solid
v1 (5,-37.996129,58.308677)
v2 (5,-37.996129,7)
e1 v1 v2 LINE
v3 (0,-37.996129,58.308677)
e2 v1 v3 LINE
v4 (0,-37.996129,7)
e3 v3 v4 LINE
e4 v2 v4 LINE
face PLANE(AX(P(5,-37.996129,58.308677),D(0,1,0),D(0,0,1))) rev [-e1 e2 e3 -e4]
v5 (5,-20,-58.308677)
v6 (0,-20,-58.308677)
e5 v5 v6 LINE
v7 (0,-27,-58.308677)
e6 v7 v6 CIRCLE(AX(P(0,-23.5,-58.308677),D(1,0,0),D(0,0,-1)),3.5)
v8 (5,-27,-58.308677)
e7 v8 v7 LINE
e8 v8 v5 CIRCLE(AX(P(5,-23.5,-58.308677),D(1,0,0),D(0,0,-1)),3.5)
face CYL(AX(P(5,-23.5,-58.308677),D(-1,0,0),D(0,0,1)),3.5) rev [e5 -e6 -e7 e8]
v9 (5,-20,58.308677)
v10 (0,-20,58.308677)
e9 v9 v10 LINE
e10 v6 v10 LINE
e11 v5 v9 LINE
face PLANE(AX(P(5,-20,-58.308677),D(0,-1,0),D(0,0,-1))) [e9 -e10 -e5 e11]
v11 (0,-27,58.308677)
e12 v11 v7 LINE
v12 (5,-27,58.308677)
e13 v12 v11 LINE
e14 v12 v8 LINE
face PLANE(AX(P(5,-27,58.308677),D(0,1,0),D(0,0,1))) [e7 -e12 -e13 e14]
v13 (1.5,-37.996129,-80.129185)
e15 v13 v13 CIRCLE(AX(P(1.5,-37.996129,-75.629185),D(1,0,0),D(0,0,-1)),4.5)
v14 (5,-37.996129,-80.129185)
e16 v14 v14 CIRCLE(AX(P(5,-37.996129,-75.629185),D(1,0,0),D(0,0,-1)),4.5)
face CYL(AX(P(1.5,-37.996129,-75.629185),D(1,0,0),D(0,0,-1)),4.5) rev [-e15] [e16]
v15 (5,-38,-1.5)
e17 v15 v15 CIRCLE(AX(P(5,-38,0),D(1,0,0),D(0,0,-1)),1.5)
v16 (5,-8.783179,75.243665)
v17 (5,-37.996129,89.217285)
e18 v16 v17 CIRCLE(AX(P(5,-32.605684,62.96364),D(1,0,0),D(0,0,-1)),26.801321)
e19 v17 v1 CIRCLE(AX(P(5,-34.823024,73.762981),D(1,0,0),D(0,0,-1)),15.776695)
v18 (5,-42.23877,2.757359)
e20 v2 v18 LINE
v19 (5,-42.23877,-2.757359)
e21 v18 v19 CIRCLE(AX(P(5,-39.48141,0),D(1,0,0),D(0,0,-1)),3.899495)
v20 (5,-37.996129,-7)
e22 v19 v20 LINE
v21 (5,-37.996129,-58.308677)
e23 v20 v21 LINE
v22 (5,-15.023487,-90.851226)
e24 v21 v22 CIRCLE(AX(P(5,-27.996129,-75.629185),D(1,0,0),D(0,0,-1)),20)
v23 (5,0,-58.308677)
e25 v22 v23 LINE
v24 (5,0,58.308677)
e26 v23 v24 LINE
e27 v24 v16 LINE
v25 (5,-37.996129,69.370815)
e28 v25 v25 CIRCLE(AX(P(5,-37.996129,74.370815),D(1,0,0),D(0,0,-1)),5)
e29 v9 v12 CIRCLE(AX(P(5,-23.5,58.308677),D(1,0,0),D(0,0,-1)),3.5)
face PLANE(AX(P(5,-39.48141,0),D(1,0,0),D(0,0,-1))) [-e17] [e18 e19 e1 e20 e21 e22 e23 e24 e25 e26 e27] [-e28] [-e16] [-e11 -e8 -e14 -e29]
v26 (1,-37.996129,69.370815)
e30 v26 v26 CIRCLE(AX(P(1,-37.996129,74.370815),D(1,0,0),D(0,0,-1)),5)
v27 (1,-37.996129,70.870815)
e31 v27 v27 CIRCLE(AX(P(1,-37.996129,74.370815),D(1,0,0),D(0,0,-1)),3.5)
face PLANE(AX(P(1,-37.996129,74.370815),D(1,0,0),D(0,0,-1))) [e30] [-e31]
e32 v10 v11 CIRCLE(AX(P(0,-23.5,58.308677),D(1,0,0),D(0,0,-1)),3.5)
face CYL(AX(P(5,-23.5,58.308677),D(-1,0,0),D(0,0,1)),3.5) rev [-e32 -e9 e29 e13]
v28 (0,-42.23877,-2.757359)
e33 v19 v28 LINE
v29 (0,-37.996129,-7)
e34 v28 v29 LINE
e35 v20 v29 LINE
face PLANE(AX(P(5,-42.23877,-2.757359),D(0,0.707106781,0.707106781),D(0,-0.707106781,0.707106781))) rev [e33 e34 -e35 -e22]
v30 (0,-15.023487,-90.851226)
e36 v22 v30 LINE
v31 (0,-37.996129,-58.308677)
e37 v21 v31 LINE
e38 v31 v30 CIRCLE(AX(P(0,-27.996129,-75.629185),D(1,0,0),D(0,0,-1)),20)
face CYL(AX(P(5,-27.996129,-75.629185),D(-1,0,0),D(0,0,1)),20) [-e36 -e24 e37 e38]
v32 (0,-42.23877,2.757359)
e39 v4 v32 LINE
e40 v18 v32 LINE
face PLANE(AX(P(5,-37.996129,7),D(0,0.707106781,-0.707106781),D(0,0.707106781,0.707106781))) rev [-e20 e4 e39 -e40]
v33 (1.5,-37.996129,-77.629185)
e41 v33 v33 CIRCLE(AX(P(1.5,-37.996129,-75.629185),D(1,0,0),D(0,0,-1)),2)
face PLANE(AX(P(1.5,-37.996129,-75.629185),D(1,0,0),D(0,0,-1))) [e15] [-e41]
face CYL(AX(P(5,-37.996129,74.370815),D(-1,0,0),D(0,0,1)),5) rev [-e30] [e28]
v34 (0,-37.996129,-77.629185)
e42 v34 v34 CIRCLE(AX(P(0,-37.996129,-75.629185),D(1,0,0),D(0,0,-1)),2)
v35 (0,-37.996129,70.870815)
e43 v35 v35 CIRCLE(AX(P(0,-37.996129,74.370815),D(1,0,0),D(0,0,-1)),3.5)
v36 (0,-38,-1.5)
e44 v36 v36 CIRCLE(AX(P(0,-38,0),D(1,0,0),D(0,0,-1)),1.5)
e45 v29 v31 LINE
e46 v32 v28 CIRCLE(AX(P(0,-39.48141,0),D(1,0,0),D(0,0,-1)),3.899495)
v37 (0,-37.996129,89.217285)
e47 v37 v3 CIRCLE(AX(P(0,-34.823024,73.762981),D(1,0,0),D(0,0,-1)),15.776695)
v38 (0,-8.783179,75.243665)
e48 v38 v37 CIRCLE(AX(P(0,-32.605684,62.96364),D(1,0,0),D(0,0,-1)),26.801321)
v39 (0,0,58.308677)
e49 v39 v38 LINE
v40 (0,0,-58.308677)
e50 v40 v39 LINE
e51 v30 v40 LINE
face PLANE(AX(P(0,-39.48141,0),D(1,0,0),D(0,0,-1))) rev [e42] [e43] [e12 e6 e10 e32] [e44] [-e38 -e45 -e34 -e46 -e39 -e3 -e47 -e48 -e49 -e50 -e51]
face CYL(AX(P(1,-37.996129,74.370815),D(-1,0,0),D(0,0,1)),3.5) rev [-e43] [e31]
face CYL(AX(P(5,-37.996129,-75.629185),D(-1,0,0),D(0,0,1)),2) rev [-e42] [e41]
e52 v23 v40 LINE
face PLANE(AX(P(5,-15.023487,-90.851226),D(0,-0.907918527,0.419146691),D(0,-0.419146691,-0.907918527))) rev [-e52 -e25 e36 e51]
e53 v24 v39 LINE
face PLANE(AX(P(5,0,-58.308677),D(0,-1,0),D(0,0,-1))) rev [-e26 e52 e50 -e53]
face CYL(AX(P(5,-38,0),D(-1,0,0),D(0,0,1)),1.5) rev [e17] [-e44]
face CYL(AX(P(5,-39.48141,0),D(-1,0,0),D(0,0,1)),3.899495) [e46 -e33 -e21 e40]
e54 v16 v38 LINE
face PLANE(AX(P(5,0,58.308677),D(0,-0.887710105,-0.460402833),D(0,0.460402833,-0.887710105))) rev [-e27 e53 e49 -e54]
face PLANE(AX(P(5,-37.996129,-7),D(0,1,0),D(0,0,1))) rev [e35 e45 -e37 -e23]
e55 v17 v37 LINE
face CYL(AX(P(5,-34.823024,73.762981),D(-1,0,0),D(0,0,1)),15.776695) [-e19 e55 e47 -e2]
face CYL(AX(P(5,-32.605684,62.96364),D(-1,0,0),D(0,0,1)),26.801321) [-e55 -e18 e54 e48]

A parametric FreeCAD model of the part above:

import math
import FreeCAD as App
import Part
import Sketcher
Q = App.Units.Quantity

doc = App.newDocument("Part")
body = doc.addObject("PartDesign::Body", "Body")

sketch1 = body.newObject("Sketcher::SketchObject", "Sketch")
sketch1.AttachmentSupport = (doc.getObject("YZ_Plane"), [""])
sketch1.MapMode = "FlatFace"
sketch1.addGeometry([
    Part.LineSegment(App.Vector(0, -58.308677, 0), App.Vector(0, 58.308677, 0)),
    Part.LineSegment(App.Vector(0, 58.308677, 0), App.Vector(-8.783179, 75.243665, 0)),
    Part.ArcOfCircle(Part.Circle(App.Vector(-32.605684, 62.96364, 0), App.Vector(0, 0, 1), 26.801321), math.radians(27.270201), math.radians(101.602817)),
    Part.ArcOfCircle(Part.Circle(App.Vector(-34.823024, 73.762981, 0), App.Vector(0, 0, 1), 15.776695), math.radians(101.602817), math.radians(258.397183)),
    Part.LineSegment(App.Vector(-37.996129, 58.308677, 0), App.Vector(-37.996129, 7, 0)),
    Part.LineSegment(App.Vector(-37.996129, 7, 0), App.Vector(-42.23877, 2.757359, 0)),
    Part.ArcOfCircle(Part.Circle(App.Vector(-39.48141, 0, 0), App.Vector(0, 0, 1), 3.899495), math.radians(135), math.radians(225)),
    Part.LineSegment(App.Vector(-42.23877, -2.757359, 0), App.Vector(-37.996129, -7, 0)),
    Part.LineSegment(App.Vector(-37.996129, -7, 0), App.Vector(-37.996129, -58.308677, 0)),
    Part.ArcOfCircle(Part.Circle(App.Vector(-27.996129, -75.629185, 0), App.Vector(0, 0, 1), 20), math.radians(120), math.radians(310.438547)),
    Part.LineSegment(App.Vector(-15.023487, -90.851226, 0), App.Vector(0, -58.308677, 0)),
    Part.Circle(App.Vector(-37.996129, 74.370815, 0), App.Vector(0, 0, 1), 5),
    Part.Circle(App.Vector(-38, 0, 0), App.Vector(0, 0, 1), 1.5),
    Part.Circle(App.Vector(-37.996129, -75.629185, 0), App.Vector(0, 0, 1), 2),
    Part.LineSegment(App.Vector(-27, -58.308677, 0), App.Vector(-27, 58.308677, 0)),
    Part.ArcOfCircle(Part.Circle(App.Vector(-23.5, 58.308677, 0), App.Vector(0, 0, 1), 3.5), math.radians(0), math.radians(180)),
    Part.LineSegment(App.Vector(-20, 58.308677, 0), App.Vector(-20, -58.308677, 0)),
    Part.ArcOfCircle(Part.Circle(App.Vector(-23.5, -58.308677, 0), App.Vector(0, 0, 1), 3.5), math.radians(180), math.radians(360)),
], False)
sketch1.addConstraint([
    Sketcher.Constraint("Coincident", 0, 2, 1, 1),
    Sketcher.Constraint("Coincident", 1, 2, 2, 1),
    Sketcher.Constraint("Coincident", 2, 2, 3, 1),
    Sketcher.Constraint("Coincident", 3, 2, 4, 1),
    Sketcher.Constraint("Coincident", 4, 2, 5, 1),
    Sketcher.Constraint("Coincident", 5, 2, 6, 1),
    Sketcher.Constraint("Coincident", 6, 2, 7, 1),
    Sketcher.Constraint("Coincident", 7, 2, 8, 1),
    Sketcher.Constraint("Coincident", 8, 2, 9, 1),
    Sketcher.Constraint("Coincident", 9, 2, 10, 1),
    Sketcher.Constraint("Coincident", 10, 2, 0, 1),
    Sketcher.Constraint("Coincident", 14, 2, 15, 2),
    Sketcher.Constraint("Coincident", 15, 1, 16, 1),
    Sketcher.Constraint("Coincident", 16, 2, 17, 2),
    Sketcher.Constraint("Coincident", 17, 1, 14, 1),
    Sketcher.Constraint("Vertical", 0),
    Sketcher.Constraint("Vertical", 4),
    Sketcher.Constraint("Vertical", 8),
    Sketcher.Constraint("Vertical", 14),
    Sketcher.Constraint("Vertical", 16),
    Sketcher.Constraint("PointOnObject", 6, 3, -1),
    Sketcher.Constraint("PointOnObject", 12, 3, -1),
    Sketcher.Constraint("PointOnObject", 0, 2, -2),
    Sketcher.Constraint("Diameter", 11, Q("10 mm")),
    Sketcher.Constraint("Diameter", 12, Q("3 mm")),
    Sketcher.Constraint("Diameter", 13, Q("4 mm")),
    Sketcher.Constraint("Radius", 9, Q("20 mm")),
    Sketcher.Constraint("Radius", 15, Q("3.5 mm")),
    Sketcher.Constraint("Distance", 5, Q("6 mm")),
    Sketcher.Constraint("Distance", 7, Q("6 mm")),
    Sketcher.Constraint("DistanceX", 12, 3, -1, 1, Q("38 mm")),
    Sketcher.Constraint("DistanceY", -1, 1, 4, 2, Q("7 mm")),
    Sketcher.Constraint("DistanceY", 7, 2, -1, 1, Q("7 mm")),
    Sketcher.Constraint("DistanceX", 14, 2, -1, 1, Q("27 mm")),
    Sketcher.Constraint("DistanceX", 11, 3, 9, 3, Q("10 mm")),
    Sketcher.Constraint("DistanceY", 9, 3, 11, 3, Q("150 mm")),
    Sketcher.Constraint("DistanceX", 13, 3, 9, 3, Q("10 mm")),
    Sketcher.Constraint("DistanceX", 8, 2, 9, 3, Q("10 mm")),
    Sketcher.Constraint("Radius", 2, Q("26.801321 mm")),
    Sketcher.Constraint("Radius", 3, Q("15.776695 mm")),
    Sketcher.Constraint("Radius", 6, Q("3.899495 mm")),
    Sketcher.Constraint("Distance", 1, Q("19.077161 mm")),
    Sketcher.Constraint("Distance", 10, Q("35.843029 mm")),
    Sketcher.Constraint("DistanceY", 0, 1, 0, 2, Q("116.617353 mm")),
    Sketcher.Constraint("DistanceY", 4, 2, 4, 1, Q("51.308677 mm")),
    Sketcher.Constraint("DistanceY", 8, 2, 8, 1, Q("51.308677 mm")),
    Sketcher.Constraint("DistanceY", 14, 1, 14, 2, Q("116.617353 mm")),
    Sketcher.Constraint("DistanceY", 16, 2, 16, 1, Q("116.617353 mm")),
    Sketcher.Constraint("DistanceY", -1, 1, 2, 3, Q("62.96364 mm")),
    Sketcher.Constraint("DistanceY", -1, 1, 3, 3, Q("73.762981 mm")),
    Sketcher.Constraint("DistanceX", 6, 3, -1, 1, Q("39.48141 mm")),
    Sketcher.Constraint("DistanceX", 9, 3, -1, 1, Q("27.996129 mm")),
    Sketcher.Constraint("DistanceX", 1, 2, -1, 1, Q("8.783179 mm")),
    Sketcher.Constraint("DistanceX", 2, 2, -1, 1, Q("37.996129 mm")),
    Sketcher.Constraint("DistanceX", 3, 2, -1, 1, Q("37.996129 mm")),
    Sketcher.Constraint("DistanceY", 15, 3, 11, 3, Q("16.062139 mm")),
    Sketcher.Constraint("DistanceY", 9, 3, 17, 3, Q("17.320508 mm")),
    Sketcher.Constraint("DistanceY", 13, 3, 17, 3, Q("17.320508 mm")),
    Sketcher.Constraint("DistanceY", 14, 2, 11, 3, Q("16.062139 mm")),
    Sketcher.Constraint("DistanceY", 9, 3, 16, 2, Q("17.320508 mm")),
])
pad1 = body.newObject("PartDesign::Pad", "Pad")
pad1.Profile = sketch1
pad1.Length = 5

sketch2 = body.newObject("Sketcher::SketchObject", "Sketch001")
sketch2.AttachmentSupport = (doc.getObject("YZ_Plane"), [""])
sketch2.MapMode = "FlatFace"
sketch2.AttachmentOffset = App.Placement(App.Vector(0, 0, 5), App.Rotation())
sketch2.addGeometry(Part.Circle(App.Vector(-37.996129, -75.629185, 0), App.Vector(0, 0, 1), 4.5), False)
sketch2.addConstraint([
    Sketcher.Constraint("Diameter", 0, Q("9 mm")),
    Sketcher.Constraint("DistanceX", 0, 3, -1, 1, Q("37.996129 mm")),
    Sketcher.Constraint("DistanceY", 0, 3, -1, 1, Q("75.629185 mm")),
])
pocket1 = body.newObject("PartDesign::Pocket", "Pocket")
pocket1.Profile = sketch2
pocket1.Length = 3.5

sketch3 = body.newObject("Sketcher::SketchObject", "Sketch002")
sketch3.AttachmentSupport = (doc.getObject("YZ_Plane"), [""])
sketch3.MapMode = "FlatFace"
sketch3.addGeometry([
    Part.Circle(App.Vector(-37.996129, 74.370815, 0), App.Vector(0, 0, 1), 5),
    Part.Circle(App.Vector(-37.996129, 74.370815, 0), App.Vector(0, 0, 1), 3.5),
], False)
sketch3.addConstraint([
    Sketcher.Constraint("Coincident", 1, 3, 0, 3),
    Sketcher.Constraint("Diameter", 0, Q("10 mm")),
    Sketcher.Constraint("Diameter", 1, Q("7 mm")),
    Sketcher.Constraint("DistanceX", 0, 3, -1, 1, Q("37.996129 mm")),
    Sketcher.Constraint("DistanceY", -1, 1, 0, 3, Q("74.370815 mm")),
])
pad2 = body.newObject("PartDesign::Pad", "Pad001")
pad2.Profile = sketch3
pad2.Length = 1

doc.recompute()
